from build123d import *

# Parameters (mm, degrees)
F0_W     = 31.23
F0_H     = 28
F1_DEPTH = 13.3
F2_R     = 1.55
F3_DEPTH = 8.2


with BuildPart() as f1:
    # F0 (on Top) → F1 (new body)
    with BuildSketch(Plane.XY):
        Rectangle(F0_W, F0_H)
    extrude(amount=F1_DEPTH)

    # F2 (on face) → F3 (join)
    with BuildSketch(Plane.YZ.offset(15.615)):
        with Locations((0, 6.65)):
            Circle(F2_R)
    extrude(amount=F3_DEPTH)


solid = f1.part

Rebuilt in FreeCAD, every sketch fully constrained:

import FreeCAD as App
import Part
import Sketcher

doc = App.newDocument("Part")
body = doc.addObject("PartDesign::Body", "Body")

# Sketch on XY plane
sketch1 = body.newObject("Sketcher::SketchObject", "Sketch")
sketch1.AttachmentSupport = (doc.getObject("XY_Plane"), [""])
sketch1.MapMode = "FlatFace"
sketch1.addGeometry([
    Part.LineSegment(App.Vector(-16, 14, 0), App.Vector(-16, -14, 0)),
    Part.LineSegment(App.Vector(-16, -14, 0), App.Vector(16, -14, 0)),
    Part.LineSegment(App.Vector(16, -14, 0), App.Vector(16, 14, 0)),
    Part.LineSegment(App.Vector(16, 14, 0), App.Vector(-16, 14, 0)),
], False)
sketch1.addConstraint([
    Sketcher.Constraint("Coincident", 0, 2, 1, 1),
    Sketcher.Constraint("Coincident", 1, 2, 2, 1),
    Sketcher.Constraint("Coincident", 2, 2, 3, 1),
    Sketcher.Constraint("Coincident", 3, 2, 0, 1),
    Sketcher.Constraint("Vertical", 0),
    Sketcher.Constraint("Horizontal", 1),
    Sketcher.Constraint("Vertical", 2),
    Sketcher.Constraint("Horizontal", 3),
    Sketcher.Constraint("Symmetric", 0, 2, 2, 2, -1, 1),
    Sketcher.Constraint("DistanceY", 0, 2, 0, 1, 28.0),
    Sketcher.Constraint("DistanceX", 1, 1, 1, 2, 31.23),
])
pad1 = body.newObject("PartDesign::Pad", "Pad")
pad1.Profile = sketch1
pad1.Length = 13.3

# Sketch on YZ plane
sketch2 = body.newObject("Sketcher::SketchObject", "Sketch001")
sketch2.AttachmentSupport = (doc.getObject("YZ_Plane"), [""])
sketch2.MapMode = "FlatFace"
sketch2.AttachmentOffset = App.Placement(App.Vector(0, 0, 15.615), App.Rotation())
sketch2.addGeometry(Part.Circle(App.Vector(0, 6.7, 0), App.Vector(0, 0, 1), 1.6), False)
sketch2.addConstraint([
    Sketcher.Constraint("PointOnObject", 0, 3, -2),
    Sketcher.Constraint("Diameter", 0, 3.1),
    Sketcher.Constraint("DistanceY", -1, 1, 0, 3, 6.65),
])
pad2 = body.newObject("PartDesign::Pad", "Pad001")
pad2.Profile = sketch2
pad2.Length = 8.2

doc.recompute()
